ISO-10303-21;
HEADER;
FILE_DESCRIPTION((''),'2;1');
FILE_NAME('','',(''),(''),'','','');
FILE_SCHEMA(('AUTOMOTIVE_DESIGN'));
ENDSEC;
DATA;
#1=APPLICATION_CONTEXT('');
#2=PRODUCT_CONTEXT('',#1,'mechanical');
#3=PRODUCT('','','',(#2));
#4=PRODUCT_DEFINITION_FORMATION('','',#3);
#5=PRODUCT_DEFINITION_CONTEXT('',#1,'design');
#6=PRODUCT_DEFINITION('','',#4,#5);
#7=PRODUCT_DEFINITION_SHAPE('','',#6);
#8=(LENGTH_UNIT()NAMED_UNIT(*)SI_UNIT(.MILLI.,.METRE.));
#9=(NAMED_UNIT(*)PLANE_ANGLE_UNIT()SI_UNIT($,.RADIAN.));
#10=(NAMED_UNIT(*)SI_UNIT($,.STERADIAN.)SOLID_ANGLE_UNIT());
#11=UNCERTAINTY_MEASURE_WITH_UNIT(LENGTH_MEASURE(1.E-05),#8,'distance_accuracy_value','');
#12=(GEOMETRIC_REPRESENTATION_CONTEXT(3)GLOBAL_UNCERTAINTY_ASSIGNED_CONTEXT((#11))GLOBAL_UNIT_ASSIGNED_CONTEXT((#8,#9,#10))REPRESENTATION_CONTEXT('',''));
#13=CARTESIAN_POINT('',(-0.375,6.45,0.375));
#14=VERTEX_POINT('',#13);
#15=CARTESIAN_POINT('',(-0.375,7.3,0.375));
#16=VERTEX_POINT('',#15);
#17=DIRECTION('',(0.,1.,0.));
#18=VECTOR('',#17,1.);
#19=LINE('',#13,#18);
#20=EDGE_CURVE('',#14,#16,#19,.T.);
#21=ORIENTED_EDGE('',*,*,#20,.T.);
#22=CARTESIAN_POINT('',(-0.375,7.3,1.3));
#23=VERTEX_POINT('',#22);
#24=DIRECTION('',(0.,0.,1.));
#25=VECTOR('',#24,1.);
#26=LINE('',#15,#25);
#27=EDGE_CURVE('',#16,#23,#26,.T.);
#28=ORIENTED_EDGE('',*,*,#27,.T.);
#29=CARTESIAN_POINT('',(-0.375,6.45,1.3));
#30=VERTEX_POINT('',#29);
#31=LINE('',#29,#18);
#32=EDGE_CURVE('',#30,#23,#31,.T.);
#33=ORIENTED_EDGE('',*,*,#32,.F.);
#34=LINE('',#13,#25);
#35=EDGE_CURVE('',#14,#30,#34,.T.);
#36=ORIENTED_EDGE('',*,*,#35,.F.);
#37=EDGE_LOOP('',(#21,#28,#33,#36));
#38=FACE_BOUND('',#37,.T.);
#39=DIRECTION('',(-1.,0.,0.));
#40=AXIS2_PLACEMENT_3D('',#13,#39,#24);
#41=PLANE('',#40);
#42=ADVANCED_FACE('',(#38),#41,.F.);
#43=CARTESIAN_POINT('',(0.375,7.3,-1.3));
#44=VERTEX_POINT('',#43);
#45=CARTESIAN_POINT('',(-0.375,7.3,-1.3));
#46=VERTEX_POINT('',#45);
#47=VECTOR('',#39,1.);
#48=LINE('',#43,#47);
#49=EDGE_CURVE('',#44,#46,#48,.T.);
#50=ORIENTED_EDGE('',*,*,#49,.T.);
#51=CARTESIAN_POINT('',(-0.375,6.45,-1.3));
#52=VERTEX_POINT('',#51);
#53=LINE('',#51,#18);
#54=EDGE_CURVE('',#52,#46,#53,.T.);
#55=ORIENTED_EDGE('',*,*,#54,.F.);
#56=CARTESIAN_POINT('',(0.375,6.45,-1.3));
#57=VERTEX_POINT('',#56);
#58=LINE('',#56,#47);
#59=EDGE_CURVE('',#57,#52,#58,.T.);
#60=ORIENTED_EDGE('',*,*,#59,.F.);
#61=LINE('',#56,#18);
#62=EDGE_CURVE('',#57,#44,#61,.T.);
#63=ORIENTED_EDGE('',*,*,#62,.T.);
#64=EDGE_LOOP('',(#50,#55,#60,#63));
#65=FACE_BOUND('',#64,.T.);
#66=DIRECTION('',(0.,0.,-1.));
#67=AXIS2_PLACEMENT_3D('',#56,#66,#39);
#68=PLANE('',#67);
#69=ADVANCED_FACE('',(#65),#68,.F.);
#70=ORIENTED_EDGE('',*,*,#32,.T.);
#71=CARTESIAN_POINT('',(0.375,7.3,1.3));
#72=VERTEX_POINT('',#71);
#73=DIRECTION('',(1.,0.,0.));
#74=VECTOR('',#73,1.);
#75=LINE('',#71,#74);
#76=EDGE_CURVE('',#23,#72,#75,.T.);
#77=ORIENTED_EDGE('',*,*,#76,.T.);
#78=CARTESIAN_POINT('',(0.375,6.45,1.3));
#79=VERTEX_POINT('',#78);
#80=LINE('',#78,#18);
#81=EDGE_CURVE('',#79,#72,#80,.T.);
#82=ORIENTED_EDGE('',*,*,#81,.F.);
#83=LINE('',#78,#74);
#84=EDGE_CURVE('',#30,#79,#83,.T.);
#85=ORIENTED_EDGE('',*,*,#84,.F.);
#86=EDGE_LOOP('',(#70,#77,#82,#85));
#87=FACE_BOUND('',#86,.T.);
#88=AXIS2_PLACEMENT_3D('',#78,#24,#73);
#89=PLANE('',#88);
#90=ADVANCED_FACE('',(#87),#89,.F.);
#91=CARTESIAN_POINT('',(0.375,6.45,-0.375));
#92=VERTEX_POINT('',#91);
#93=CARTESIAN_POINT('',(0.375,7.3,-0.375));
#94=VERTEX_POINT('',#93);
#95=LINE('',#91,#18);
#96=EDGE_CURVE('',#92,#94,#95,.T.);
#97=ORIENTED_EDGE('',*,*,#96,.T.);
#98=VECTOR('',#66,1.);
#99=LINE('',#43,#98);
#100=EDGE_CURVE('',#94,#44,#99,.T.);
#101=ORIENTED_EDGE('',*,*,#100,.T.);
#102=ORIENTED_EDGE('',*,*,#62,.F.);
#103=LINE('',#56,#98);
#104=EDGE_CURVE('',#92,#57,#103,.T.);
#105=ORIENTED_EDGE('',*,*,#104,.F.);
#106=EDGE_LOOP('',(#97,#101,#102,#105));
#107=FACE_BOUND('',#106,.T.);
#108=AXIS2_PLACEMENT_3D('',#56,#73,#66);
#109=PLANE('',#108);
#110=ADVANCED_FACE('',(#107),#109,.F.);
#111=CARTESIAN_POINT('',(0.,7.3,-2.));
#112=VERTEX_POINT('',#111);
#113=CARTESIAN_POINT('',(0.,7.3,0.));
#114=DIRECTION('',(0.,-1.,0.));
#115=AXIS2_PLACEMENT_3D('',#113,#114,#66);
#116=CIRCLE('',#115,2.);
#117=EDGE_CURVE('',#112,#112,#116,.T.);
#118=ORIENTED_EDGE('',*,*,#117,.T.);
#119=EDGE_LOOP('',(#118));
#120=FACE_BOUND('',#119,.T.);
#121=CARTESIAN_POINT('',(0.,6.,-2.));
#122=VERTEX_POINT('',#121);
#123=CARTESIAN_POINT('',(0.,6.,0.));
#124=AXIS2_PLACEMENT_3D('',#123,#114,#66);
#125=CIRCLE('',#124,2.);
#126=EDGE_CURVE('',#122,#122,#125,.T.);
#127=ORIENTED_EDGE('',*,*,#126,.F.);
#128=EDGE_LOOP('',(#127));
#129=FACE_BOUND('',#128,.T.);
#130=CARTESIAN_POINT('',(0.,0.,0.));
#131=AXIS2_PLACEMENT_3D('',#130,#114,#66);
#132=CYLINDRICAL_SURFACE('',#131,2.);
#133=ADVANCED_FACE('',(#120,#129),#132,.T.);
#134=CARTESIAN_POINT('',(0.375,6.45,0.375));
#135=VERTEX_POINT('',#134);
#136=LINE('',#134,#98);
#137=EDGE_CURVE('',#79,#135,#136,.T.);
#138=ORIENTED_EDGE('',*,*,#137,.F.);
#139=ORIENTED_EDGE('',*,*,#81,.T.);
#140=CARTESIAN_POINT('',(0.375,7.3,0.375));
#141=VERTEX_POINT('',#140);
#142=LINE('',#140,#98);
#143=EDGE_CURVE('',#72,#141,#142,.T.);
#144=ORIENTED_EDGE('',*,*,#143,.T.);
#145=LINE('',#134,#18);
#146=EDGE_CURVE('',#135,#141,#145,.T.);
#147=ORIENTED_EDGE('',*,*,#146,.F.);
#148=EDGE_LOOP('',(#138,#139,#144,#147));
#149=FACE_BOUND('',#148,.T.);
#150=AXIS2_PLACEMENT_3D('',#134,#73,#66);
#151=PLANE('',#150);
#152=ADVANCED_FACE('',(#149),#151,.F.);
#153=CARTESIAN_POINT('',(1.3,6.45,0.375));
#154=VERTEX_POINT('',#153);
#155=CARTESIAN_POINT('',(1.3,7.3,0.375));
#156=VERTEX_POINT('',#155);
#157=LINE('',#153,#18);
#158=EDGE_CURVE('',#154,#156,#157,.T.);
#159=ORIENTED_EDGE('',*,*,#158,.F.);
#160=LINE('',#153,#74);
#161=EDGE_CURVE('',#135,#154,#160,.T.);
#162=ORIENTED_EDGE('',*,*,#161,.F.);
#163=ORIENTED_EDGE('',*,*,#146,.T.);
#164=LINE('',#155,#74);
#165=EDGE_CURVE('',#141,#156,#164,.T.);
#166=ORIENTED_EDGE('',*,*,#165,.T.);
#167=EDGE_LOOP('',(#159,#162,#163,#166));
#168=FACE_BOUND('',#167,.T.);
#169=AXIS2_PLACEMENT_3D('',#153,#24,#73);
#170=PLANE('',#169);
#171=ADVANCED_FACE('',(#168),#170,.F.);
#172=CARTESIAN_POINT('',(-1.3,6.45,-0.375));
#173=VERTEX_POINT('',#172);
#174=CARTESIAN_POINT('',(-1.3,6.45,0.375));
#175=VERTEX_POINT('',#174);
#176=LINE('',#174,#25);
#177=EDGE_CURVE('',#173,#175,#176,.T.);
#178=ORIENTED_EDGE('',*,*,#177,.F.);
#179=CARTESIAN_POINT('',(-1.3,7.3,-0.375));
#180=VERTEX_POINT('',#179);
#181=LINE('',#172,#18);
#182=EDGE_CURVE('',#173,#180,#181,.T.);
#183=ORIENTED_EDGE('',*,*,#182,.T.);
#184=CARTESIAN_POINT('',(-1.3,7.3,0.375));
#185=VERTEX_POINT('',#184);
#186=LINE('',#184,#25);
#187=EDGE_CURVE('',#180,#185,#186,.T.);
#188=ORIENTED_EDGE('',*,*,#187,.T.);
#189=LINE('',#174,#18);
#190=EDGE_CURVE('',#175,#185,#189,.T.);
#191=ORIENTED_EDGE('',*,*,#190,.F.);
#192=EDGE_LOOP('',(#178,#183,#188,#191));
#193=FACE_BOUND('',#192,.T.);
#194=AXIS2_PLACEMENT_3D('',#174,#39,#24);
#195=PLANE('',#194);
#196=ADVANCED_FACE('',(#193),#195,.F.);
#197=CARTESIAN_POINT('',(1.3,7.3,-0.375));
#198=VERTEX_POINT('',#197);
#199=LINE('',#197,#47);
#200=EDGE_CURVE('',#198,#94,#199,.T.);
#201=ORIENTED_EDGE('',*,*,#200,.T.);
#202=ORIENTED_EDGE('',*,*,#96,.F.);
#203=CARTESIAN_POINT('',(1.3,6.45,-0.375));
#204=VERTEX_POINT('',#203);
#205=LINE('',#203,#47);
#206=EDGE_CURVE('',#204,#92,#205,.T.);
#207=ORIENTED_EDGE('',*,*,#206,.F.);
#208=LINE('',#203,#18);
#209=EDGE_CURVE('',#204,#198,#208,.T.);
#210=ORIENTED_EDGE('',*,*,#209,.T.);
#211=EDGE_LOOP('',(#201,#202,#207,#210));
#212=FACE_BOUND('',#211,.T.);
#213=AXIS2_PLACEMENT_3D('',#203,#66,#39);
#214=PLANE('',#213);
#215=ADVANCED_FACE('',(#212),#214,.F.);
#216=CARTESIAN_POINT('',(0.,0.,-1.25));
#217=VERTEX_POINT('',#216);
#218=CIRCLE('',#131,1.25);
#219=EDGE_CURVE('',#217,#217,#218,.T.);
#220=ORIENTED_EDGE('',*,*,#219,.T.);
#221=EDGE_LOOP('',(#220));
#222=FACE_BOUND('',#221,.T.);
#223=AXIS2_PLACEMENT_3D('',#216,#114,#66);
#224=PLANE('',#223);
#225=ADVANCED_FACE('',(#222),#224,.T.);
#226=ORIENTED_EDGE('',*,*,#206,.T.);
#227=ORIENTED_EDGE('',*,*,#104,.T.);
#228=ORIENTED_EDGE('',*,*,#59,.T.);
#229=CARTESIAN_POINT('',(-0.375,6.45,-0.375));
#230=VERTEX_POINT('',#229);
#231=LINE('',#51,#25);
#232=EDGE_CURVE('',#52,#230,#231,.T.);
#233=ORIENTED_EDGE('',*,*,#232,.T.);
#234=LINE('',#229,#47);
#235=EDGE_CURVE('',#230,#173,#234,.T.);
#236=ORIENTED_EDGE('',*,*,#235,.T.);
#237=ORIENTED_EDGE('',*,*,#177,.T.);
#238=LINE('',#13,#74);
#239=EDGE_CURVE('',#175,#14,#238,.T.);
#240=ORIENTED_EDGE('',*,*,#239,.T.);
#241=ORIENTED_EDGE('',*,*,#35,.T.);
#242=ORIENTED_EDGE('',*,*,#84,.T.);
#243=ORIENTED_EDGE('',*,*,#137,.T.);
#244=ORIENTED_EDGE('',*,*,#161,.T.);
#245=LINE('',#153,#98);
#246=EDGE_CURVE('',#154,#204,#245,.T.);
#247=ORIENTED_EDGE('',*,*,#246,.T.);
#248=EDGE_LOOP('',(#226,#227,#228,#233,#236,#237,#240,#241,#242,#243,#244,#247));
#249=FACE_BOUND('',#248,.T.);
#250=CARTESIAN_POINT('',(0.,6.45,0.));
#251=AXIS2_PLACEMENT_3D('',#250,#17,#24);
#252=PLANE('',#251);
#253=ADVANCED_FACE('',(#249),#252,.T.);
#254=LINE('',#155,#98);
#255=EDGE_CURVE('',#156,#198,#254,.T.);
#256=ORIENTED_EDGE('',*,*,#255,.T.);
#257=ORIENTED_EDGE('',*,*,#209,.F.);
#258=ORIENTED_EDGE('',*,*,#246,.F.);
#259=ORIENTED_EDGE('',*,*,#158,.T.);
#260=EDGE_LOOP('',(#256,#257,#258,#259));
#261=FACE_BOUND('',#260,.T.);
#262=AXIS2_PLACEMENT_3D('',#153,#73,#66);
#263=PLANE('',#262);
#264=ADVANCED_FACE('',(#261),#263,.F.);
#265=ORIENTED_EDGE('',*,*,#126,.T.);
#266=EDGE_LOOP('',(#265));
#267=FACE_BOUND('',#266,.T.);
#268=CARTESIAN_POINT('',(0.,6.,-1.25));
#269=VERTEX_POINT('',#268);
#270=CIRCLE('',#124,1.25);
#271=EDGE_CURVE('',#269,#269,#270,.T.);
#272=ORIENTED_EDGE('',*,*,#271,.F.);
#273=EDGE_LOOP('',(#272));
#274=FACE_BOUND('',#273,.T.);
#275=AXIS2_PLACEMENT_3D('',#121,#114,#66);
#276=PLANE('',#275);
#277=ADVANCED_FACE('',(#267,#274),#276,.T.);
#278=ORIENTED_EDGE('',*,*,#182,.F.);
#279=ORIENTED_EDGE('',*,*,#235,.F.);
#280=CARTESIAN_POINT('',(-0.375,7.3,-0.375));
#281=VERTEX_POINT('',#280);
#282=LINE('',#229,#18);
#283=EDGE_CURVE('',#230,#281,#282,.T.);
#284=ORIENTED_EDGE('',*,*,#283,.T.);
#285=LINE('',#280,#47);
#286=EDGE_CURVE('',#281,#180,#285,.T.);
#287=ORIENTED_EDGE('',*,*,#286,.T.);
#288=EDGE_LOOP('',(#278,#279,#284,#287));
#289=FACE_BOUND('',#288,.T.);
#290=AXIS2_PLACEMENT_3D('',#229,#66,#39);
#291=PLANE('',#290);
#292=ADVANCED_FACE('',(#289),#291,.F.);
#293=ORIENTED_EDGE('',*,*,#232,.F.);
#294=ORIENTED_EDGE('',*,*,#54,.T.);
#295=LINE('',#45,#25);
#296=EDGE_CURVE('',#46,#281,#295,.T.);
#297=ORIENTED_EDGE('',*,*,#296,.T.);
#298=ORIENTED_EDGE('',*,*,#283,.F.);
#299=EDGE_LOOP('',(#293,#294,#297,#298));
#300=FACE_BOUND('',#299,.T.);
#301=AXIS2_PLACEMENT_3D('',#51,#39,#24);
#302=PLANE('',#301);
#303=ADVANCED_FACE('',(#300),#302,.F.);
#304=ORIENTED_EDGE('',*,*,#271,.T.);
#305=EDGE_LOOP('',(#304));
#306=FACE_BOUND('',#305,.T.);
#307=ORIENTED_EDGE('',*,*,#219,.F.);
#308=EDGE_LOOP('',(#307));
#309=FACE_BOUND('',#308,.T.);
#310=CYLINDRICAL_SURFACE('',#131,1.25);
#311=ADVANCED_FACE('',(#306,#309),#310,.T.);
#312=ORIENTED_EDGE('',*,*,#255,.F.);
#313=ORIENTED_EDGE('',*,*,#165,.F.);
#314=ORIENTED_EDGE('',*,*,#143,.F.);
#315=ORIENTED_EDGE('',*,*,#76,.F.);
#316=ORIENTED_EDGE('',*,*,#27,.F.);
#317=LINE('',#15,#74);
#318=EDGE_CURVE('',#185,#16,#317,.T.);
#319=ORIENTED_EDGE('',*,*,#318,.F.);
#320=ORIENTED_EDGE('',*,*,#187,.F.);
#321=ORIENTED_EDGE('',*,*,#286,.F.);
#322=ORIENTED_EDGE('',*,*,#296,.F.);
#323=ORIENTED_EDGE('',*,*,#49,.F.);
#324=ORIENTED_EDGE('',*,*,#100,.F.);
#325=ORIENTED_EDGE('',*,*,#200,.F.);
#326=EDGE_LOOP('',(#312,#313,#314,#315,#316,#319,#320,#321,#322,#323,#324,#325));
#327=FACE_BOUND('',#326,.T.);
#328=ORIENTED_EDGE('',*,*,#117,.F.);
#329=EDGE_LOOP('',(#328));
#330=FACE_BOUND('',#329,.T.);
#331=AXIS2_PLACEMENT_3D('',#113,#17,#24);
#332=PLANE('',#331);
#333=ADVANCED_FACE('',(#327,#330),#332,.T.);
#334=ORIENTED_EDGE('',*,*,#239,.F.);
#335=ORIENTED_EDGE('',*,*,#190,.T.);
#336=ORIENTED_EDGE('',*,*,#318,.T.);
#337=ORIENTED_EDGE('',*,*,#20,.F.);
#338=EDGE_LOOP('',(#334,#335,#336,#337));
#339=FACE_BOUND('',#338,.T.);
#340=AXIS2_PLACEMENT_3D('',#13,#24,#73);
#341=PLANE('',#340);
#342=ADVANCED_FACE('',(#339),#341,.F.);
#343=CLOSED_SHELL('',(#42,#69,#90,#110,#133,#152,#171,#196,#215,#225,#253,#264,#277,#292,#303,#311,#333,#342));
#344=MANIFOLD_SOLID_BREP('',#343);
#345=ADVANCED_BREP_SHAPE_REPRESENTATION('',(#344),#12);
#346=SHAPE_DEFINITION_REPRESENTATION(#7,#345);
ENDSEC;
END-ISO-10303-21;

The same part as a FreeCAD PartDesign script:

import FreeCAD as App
import Part
import Sketcher
from FreeCAD import Vector
Q = App.Units.Quantity

doc = App.newDocument("Part")
body = doc.addObject("PartDesign::Body", "Body")

# Sketch on YZ plane
sketch1 = doc.addObject("Sketcher::SketchObject", "Sketch")
body.addObject(sketch1)
sketch1.AttachmentSupport = (doc.YZ_Plane, [""])
sketch1.MapMode = "FlatFace"
sketch1.addGeometry([
    Part.LineSegment(Vector(7.3, -2, 0), Vector(7.3, 0, 0)),  # 0
    Part.LineSegment(Vector(7.3, 0, 0), Vector(0, 0, 0)),  # 1
    Part.LineSegment(Vector(0, 0, 0), Vector(0, -1.2, 0)),  # 2
    Part.LineSegment(Vector(0, -1.2, 0), Vector(6, -1.2, 0)),  # 3
    Part.LineSegment(Vector(6, -1.2, 0), Vector(6, -2, 0)),  # 4
    Part.LineSegment(Vector(6, -2, 0), Vector(7.3, -2, 0)),  # 5
], False)
sketch1.addConstraint([
    Sketcher.Constraint("Coincident", 0, 2, 1, 1),
    Sketcher.Constraint("Coincident", 1, 2, 2, 1),
    Sketcher.Constraint("Coincident", 2, 2, 3, 1),
    Sketcher.Constraint("Coincident", 3, 2, 4, 1),
    Sketcher.Constraint("Coincident", 4, 2, 5, 1),
    Sketcher.Constraint("Coincident", 5, 2, 0, 1),
    Sketcher.Constraint("Vertical", 0),
    Sketcher.Constraint("Horizontal", 1),
    Sketcher.Constraint("Vertical", 2),
    Sketcher.Constraint("Horizontal", 3),
    Sketcher.Constraint("Vertical", 4),
    Sketcher.Constraint("Horizontal", 5),
    Sketcher.Constraint("Coincident", 1, 2, -1, 1),
    Sketcher.Constraint("DistanceX", 3, 1, 3, 2, Q("6 mm")),
    Sketcher.Constraint("DistanceY", 0, 1, 0, 2, Q("2 mm")),
    Sketcher.Constraint("DistanceX", 1, 2, 1, 1, Q("7.3 mm")),
    Sketcher.Constraint("DistanceY", 2, 2, 2, 1, Q("1.25 mm")),
])
revolution = doc.addObject("PartDesign::Revolution", "Revolution")
body.addObject(revolution)
revolution.Profile = sketch1
revolution.ReferenceAxis = (sketch1, ["H_Axis"])
revolution.Angle = 360

# Sketch on XZ plane
sketch2 = doc.addObject("Sketcher::SketchObject", "Sketch001")
body.addObject(sketch2)
sketch2.AttachmentSupport = (doc.XZ_Plane, [""])
sketch2.MapMode = "FlatFace"
sketch2.AttachmentOffset = App.Placement(Vector(0, 0, -7.3), App.Rotation())
sketch2.addGeometry([
    Part.LineSegment(Vector(0.4, 1.3, 0), Vector(0.4, 0.4, 0)),  # 0
    Part.LineSegment(Vector(0.4, 0.4, 0), Vector(1.3, 0.4, 0)),  # 1
    Part.LineSegment(Vector(1.3, 0.4, 0), Vector(1.3, -0.4, 0)),  # 2
    Part.LineSegment(Vector(1.3, -0.4, 0), Vector(0.4, -0.4, 0)),  # 3
    Part.LineSegment(Vector(0.4, -0.4, 0), Vector(0.4, -1.3, 0)),  # 4
    Part.LineSegment(Vector(0.4, -1.3, 0), Vector(-0.4, -1.3, 0)),  # 5
    Part.LineSegment(Vector(-0.4, -1.3, 0), Vector(-0.4, -0.4, 0)),  # 6
    Part.LineSegment(Vector(-0.4, -0.4, 0), Vector(-1.3, -0.4, 0)),  # 7
    Part.LineSegment(Vector(-1.3, -0.4, 0), Vector(-1.3, 0.4, 0)),  # 8
    Part.LineSegment(Vector(-1.3, 0.4, 0), Vector(-0.4, 0.4, 0)),  # 9
    Part.LineSegment(Vector(-0.4, 0.4, 0), Vector(-0.4, 1.3, 0)),  # 10
    Part.LineSegment(Vector(-0.4, 1.3, 0), Vector(0.4, 1.3, 0)),  # 11
], False)
sketch2.addConstraint([
    Sketcher.Constraint("Coincident", 0, 2, 1, 1),
    Sketcher.Constraint("Coincident", 1, 2, 2, 1),
    Sketcher.Constraint("Coincident", 2, 2, 3, 1),
    Sketcher.Constraint("Coincident", 3, 2, 4, 1),
    Sketcher.Constraint("Coincident", 4, 2, 5, 1),
    Sketcher.Constraint("Coincident", 5, 2, 6, 1),
    Sketcher.Constraint("Coincident", 6, 2, 7, 1),
    Sketcher.Constraint("Coincident", 7, 2, 8, 1),
    Sketcher.Constraint("Coincident", 8, 2, 9, 1),
    Sketcher.Constraint("Coincident", 9, 2, 10, 1),
    Sketcher.Constraint("Coincident", 10, 2, 11, 1),
    Sketcher.Constraint("Coincident", 11, 2, 0, 1),
    Sketcher.Constraint("Vertical", 0),
    Sketcher.Constraint("Horizontal", 1),
    Sketcher.Constraint("Vertical", 2),
    Sketcher.Constraint("Horizontal", 3),
    Sketcher.Constraint("Vertical", 4),
    Sketcher.Constraint("Horizontal", 5),
    Sketcher.Constraint("Vertical", 6),
    Sketcher.Constraint("Horizontal", 7),
    Sketcher.Constraint("Vertical", 8),
    Sketcher.Constraint("Horizontal", 9),
    Sketcher.Constraint("Vertical", 10),
    Sketcher.Constraint("Horizontal", 11),
    Sketcher.Constraint("Symmetric", 0, 2, 6, 2, -1, 1),
    Sketcher.Constraint("Symmetric", 2, 2, 8, 2, -1, 1),
    Sketcher.Constraint("Symmetric", 4, 2, 10, 2, -1, 1),
    Sketcher.Constraint("Symmetric", 3, 2, 6, 2, -2),
    Sketcher.Constraint("Equal", 9, 0),
    Sketcher.Constraint("Equal", 11, 2),
    Sketcher.Constraint("DistanceX", 5, 2, 5, 1, Q("0.75 mm")),
    Sketcher.Constraint("DistanceX", -1, 1, 1, 2, Q("1.3 mm")),
])
pocket1 = doc.addObject("PartDesign::Pocket", "Pocket")
body.addObject(pocket1)
pocket1.Profile = sketch2
pocket1.Length = 0.85
pocket1.Reversed = True

doc.recompute()
